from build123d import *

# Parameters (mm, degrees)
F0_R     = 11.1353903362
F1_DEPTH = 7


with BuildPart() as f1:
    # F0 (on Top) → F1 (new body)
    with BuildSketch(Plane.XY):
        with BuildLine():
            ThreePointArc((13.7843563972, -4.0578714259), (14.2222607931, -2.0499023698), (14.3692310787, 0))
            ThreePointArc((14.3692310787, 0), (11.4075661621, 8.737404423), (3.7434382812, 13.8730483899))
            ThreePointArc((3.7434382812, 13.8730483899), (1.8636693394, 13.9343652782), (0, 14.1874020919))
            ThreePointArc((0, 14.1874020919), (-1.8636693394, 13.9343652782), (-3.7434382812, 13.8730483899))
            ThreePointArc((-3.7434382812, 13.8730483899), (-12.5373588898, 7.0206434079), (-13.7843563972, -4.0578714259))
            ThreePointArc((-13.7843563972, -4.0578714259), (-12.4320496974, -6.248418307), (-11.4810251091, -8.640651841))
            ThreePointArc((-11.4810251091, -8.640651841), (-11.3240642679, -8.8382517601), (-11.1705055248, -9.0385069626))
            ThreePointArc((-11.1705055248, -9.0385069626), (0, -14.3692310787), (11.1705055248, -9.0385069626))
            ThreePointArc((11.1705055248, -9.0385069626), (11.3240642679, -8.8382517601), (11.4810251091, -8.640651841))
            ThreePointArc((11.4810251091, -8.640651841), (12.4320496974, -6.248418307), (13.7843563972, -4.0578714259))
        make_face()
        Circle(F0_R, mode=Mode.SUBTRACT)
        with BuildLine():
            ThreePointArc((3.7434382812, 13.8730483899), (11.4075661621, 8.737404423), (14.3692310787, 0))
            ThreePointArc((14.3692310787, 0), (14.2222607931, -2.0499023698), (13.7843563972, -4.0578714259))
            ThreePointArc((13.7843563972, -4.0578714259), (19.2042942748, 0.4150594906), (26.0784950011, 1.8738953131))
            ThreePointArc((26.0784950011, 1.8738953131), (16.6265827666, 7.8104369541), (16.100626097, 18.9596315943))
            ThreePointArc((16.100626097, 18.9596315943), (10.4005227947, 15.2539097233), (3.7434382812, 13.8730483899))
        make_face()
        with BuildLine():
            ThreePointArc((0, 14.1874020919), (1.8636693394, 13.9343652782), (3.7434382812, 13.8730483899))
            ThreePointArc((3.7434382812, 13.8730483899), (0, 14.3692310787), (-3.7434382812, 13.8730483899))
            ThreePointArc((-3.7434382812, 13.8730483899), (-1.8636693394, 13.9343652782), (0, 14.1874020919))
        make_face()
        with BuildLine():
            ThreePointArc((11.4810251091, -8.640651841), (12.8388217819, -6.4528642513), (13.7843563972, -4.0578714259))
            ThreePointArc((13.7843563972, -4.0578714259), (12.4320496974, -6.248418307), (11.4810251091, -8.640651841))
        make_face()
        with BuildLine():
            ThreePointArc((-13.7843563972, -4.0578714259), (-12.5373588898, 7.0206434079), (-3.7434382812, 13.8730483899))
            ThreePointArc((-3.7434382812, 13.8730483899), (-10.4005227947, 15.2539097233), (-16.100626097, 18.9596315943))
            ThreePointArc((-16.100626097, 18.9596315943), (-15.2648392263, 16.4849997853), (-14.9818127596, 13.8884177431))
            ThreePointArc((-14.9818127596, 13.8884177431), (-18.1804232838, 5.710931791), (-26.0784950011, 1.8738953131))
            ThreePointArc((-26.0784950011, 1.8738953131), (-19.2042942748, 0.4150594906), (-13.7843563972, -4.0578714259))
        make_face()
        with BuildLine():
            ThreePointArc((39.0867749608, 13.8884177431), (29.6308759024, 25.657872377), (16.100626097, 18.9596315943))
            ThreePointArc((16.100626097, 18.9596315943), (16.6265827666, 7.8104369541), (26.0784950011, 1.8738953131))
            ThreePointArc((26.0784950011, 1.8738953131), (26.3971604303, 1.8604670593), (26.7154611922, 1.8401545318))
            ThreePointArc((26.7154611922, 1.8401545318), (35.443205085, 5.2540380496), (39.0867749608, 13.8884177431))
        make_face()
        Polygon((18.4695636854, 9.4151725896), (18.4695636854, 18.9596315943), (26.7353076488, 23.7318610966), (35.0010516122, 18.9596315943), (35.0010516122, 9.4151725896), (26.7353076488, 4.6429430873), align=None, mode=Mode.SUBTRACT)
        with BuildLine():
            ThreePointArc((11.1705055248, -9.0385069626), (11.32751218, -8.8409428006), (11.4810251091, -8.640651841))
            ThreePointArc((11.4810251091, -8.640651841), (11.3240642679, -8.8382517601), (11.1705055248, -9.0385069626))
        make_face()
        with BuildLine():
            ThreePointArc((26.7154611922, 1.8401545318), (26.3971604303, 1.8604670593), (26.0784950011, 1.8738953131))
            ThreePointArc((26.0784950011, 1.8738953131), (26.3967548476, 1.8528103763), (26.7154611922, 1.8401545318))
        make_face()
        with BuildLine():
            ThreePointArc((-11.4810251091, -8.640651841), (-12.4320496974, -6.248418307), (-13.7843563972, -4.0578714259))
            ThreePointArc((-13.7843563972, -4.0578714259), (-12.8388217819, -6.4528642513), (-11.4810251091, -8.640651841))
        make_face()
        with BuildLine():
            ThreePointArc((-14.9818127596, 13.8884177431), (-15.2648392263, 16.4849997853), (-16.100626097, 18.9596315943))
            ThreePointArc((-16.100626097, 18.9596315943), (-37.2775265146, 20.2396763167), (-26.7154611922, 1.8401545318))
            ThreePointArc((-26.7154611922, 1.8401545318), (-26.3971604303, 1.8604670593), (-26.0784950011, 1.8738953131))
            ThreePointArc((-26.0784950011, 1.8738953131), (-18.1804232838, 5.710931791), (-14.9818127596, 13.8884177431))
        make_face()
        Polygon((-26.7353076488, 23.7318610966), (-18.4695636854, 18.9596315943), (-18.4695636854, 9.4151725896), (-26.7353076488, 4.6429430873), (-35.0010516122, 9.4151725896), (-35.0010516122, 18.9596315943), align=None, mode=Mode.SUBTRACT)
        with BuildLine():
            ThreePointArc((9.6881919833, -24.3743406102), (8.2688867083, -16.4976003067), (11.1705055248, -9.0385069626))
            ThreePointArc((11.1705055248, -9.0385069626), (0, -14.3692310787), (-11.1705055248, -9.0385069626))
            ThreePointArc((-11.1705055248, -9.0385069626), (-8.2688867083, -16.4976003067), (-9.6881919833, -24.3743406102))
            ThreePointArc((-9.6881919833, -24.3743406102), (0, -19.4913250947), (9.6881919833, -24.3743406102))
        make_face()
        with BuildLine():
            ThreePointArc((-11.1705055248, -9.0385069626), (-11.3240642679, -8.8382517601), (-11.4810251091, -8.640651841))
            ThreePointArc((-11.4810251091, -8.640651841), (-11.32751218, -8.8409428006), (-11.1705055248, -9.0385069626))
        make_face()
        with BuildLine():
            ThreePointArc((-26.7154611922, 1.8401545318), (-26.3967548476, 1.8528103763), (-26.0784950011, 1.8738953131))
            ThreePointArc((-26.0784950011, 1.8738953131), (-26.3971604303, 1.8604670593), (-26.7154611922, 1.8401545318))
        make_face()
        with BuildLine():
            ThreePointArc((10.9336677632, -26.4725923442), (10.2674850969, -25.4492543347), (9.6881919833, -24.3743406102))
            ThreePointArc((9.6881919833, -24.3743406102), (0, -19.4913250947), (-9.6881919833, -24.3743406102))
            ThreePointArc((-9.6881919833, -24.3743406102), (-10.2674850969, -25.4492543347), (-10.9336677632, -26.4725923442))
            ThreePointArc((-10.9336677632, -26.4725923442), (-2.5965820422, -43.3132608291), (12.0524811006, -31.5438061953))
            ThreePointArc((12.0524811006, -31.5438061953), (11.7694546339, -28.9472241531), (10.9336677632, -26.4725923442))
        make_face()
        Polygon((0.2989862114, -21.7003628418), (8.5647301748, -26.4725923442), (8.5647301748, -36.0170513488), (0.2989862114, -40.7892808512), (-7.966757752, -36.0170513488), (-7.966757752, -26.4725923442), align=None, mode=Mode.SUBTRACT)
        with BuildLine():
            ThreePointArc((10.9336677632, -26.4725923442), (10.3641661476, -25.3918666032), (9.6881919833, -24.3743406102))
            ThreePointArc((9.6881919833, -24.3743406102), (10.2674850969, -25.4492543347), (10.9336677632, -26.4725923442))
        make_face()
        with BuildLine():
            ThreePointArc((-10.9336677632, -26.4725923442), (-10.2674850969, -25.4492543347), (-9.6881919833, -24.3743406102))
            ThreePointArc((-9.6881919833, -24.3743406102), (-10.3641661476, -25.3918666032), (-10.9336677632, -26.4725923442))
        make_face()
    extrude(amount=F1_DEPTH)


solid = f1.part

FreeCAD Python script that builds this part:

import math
import FreeCAD as App
import Part
import Sketcher
Q = App.Units.Quantity

doc = App.newDocument("Part")
body = doc.addObject("PartDesign::Body", "Body")

# Sketch on XY plane
sketch1 = body.newObject("Sketcher::SketchObject", "Sketch")
sketch1.AttachmentSupport = (doc.getObject("XY_Plane"), [""])
sketch1.MapMode = "FlatFace"
sketch1.addGeometry(Part.ArcOfCircle(Part.Circle(App.Vector(25.6, -12.9, 0), App.Vector(0, 0, 1), 14.8), math.radians(88), math.radians(143)), False)
sketch1.addGeometry(Part.ArcOfCircle(Part.Circle(App.Vector(27, 13.9, 0), App.Vector(0, 0, 1), 12.1), math.radians(-94.55), math.radians(-91.52)), False)
sketch1.addGeometry(Part.ArcOfCircle(Part.Circle(App.Vector(27, 13.9, 0), App.Vector(0, 0, 1), 12.1), math.radians(-92), math.radians(0)), False)
sketch1.addGeometry(Part.ArcOfCircle(Part.Circle(App.Vector(27, 13.9, 0), App.Vector(0, 0, 1), 12.1), math.radians(0), math.radians(155)), False)
sketch1.addGeometry(Part.ArcOfCircle(Part.Circle(App.Vector(3.4, 32.3, 0), App.Vector(0, 0, 1), 18.4), math.radians(-89), math.radians(-46)), False)
sketch1.addGeometry(Part.ArcOfCircle(Part.Circle(App.Vector(0, 0, 0), App.Vector(0, 0, 1), 14.4), math.radians(75), math.radians(105)), False)
sketch1.addGeometry(Part.ArcOfCircle(Part.Circle(App.Vector(-3.4, 32.3, 0), App.Vector(0, 0, 1), 18.4), math.radians(-134), math.radians(-91)), False)
sketch1.addGeometry(Part.ArcOfCircle(Part.Circle(App.Vector(-27, 13.9, 0), App.Vector(0, 0, 1), 12.1), math.radians(25), math.radians(272)), False)
sketch1.addGeometry(Part.ArcOfCircle(Part.Circle(App.Vector(-27, 13.9, 0), App.Vector(0, 0, 1), 12.1), math.radians(-88.48), math.radians(-85.45)), False)
sketch1.addGeometry(Part.ArcOfCircle(Part.Circle(App.Vector(-25.6, -12.9, 0), App.Vector(0, 0, 1), 14.8), math.radians(37), math.radians(92)), False)
sketch1.addGeometry(Part.ArcOfCircle(Part.Circle(App.Vector(0, 0, 0), App.Vector(0, 0, 1), 14.4), math.radians(-164), math.radians(-143)), False)
sketch1.addGeometry(Part.ArcOfCircle(Part.Circle(App.Vector(0, 0, 0), App.Vector(0, 0, 1), 14.4), math.radians(-143.03), math.radians(-141.02)), False)
sketch1.addGeometry(Part.ArcOfCircle(Part.Circle(App.Vector(-23, -17.9, 0), App.Vector(0, 0, 1), 14.8), math.radians(-26), math.radians(37)), False)
sketch1.addGeometry(Part.ArcOfCircle(Part.Circle(App.Vector(0, -31.5, 0), App.Vector(0, 0, 1), 12.1), math.radians(143.5), math.radians(155.12)), False)
sketch1.addGeometry(Part.ArcOfCircle(Part.Circle(App.Vector(0, -31.5, 0), App.Vector(0, 0, 1), 12.1), math.radians(155), math.radians(360)), False)
sketch1.addGeometry(Part.ArcOfCircle(Part.Circle(App.Vector(0, -31.5, 0), App.Vector(0, 0, 1), 12.1), math.radians(0), math.radians(25)), False)
sketch1.addGeometry(Part.ArcOfCircle(Part.Circle(App.Vector(0, -31.5, 0), App.Vector(0, 0, 1), 12.1), math.radians(24.88), math.radians(36.5)), False)
sketch1.addGeometry(Part.ArcOfCircle(Part.Circle(App.Vector(23, -17.9, 0), App.Vector(0, 0, 1), 14.8), math.radians(143), math.radians(206)), False)
sketch1.addGeometry(Part.ArcOfCircle(Part.Circle(App.Vector(0, 0, 0), App.Vector(0, 0, 1), 14.4), math.radians(-38.98), math.radians(-36.97)), False)
sketch1.addGeometry(Part.ArcOfCircle(Part.Circle(App.Vector(0, 0, 0), App.Vector(0, 0, 1), 14.4), math.radians(-37), math.radians(-16)), False)
sketch1.addGeometry(Part.LineSegment(App.Vector(-8, -26.5, 0), App.Vector(0.3, -21.7, 0)), False)
sketch1.addGeometry(Part.LineSegment(App.Vector(0.3, -21.7, 0), App.Vector(8.6, -26.5, 0)), False)
sketch1.addGeometry(Part.LineSegment(App.Vector(8.6, -26.5, 0), App.Vector(8.6, -36, 0)), False)
sketch1.addGeometry(Part.LineSegment(App.Vector(8.6, -36, 0), App.Vector(0.3, -40.8, 0)), False)
sketch1.addGeometry(Part.LineSegment(App.Vector(0.3, -40.8, 0), App.Vector(-8, -36, 0)), False)
sketch1.addGeometry(Part.LineSegment(App.Vector(-8, -36, 0), App.Vector(-8, -26.5, 0)), False)
sketch1.addGeometry(Part.LineSegment(App.Vector(-35, 19, 0), App.Vector(-26.7, 23.7, 0)), False)
sketch1.addGeometry(Part.LineSegment(App.Vector(-26.7, 23.7, 0), App.Vector(-18.5, 19, 0)), False)
sketch1.addGeometry(Part.LineSegment(App.Vector(-18.5, 19, 0), App.Vector(-18.5, 9.4, 0)), False)
sketch1.addGeometry(Part.LineSegment(App.Vector(-18.5, 9.4, 0), App.Vector(-26.7, 4.6, 0)), False)
sketch1.addGeometry(Part.LineSegment(App.Vector(-26.7, 4.6, 0), App.Vector(-35, 9.4, 0)), False)
sketch1.addGeometry(Part.LineSegment(App.Vector(-35, 9.4, 0), App.Vector(-35, 19, 0)), False)
sketch1.addGeometry(Part.Circle(App.Vector(0, 0, 0), App.Vector(0, 0, 1), 11.1), False)
sketch1.addGeometry(Part.LineSegment(App.Vector(26.7, 4.6, 0), App.Vector(18.5, 9.4, 0)), False)
sketch1.addGeometry(Part.LineSegment(App.Vector(18.5, 9.4, 0), App.Vector(18.5, 19, 0)), False)
sketch1.addGeometry(Part.LineSegment(App.Vector(18.5, 19, 0), App.Vector(26.7, 23.7, 0)), False)
sketch1.addGeometry(Part.LineSegment(App.Vector(26.7, 23.7, 0), App.Vector(35, 19, 0)), False)
sketch1.addGeometry(Part.LineSegment(App.Vector(35, 19, 0), App.Vector(35, 9.4, 0)), False)
sketch1.addGeometry(Part.LineSegment(App.Vector(35, 9.4, 0), App.Vector(26.7, 4.6, 0)), False)
sketch1.addConstraint(Sketcher.Constraint("Coincident", 0, 1, 1, 1))
sketch1.addConstraint(Sketcher.Constraint("Tangent", 1, 2, 2, 1))
sketch1.addConstraint(Sketcher.Constraint("Tangent", 2, 2, 3, 1))
sketch1.addConstraint(Sketcher.Constraint("Coincident", 3, 2, 4, 2))
sketch1.addConstraint(Sketcher.Constraint("Coincident", 4, 1, 5, 1))
sketch1.addConstraint(Sketcher.Constraint("Coincident", 5, 2, 6, 2))
sketch1.addConstraint(Sketcher.Constraint("Coincident", 6, 1, 7, 1))
sketch1.addConstraint(Sketcher.Constraint("Tangent", 7, 2, 8, 1))
sketch1.addConstraint(Sketcher.Constraint("Coincident", 8, 2, 9, 2))
sketch1.addConstraint(Sketcher.Constraint("Coincident", 9, 1, 10, 1))
sketch1.addConstraint(Sketcher.Constraint("Tangent", 10, 2, 11, 1))
sketch1.addConstraint(Sketcher.Constraint("Coincident", 11, 2, 12, 2))
sketch1.addConstraint(Sketcher.Constraint("Coincident", 12, 1, 13, 1))
sketch1.addConstraint(Sketcher.Constraint("Tangent", 13, 2, 14, 1))
sketch1.addConstraint(Sketcher.Constraint("Tangent", 14, 2, 15, 1))
sketch1.addConstraint(Sketcher.Constraint("Tangent", 15, 2, 16, 1))
sketch1.addConstraint(Sketcher.Constraint("Coincident", 16, 2, 17, 2))
sketch1.addConstraint(Sketcher.Constraint("Coincident", 17, 1, 18, 1))
sketch1.addConstraint(Sketcher.Constraint("Tangent", 18, 2, 19, 1))
sketch1.addConstraint(Sketcher.Constraint("Coincident", 19, 2, 0, 2))
sketch1.addConstraint(Sketcher.Constraint("Coincident", 20, 2, 21, 1))
sketch1.addConstraint(Sketcher.Constraint("Coincident", 21, 2, 22, 1))
sketch1.addConstraint(Sketcher.Constraint("Coincident", 22, 2, 23, 1))
sketch1.addConstraint(Sketcher.Constraint("Coincident", 23, 2, 24, 1))
sketch1.addConstraint(Sketcher.Constraint("Coincident", 24, 2, 25, 1))
sketch1.addConstraint(Sketcher.Constraint("Coincident", 25, 2, 20, 1))
sketch1.addConstraint(Sketcher.Constraint("Coincident", 26, 2, 27, 1))
sketch1.addConstraint(Sketcher.Constraint("Coincident", 27, 2, 28, 1))
sketch1.addConstraint(Sketcher.Constraint("Coincident", 28, 2, 29, 1))
sketch1.addConstraint(Sketcher.Constraint("Coincident", 29, 2, 30, 1))
sketch1.addConstraint(Sketcher.Constraint("Coincident", 30, 2, 31, 1))
sketch1.addConstraint(Sketcher.Constraint("Coincident", 31, 2, 26, 1))
sketch1.addConstraint(Sketcher.Constraint("Coincident", 33, 2, 34, 1))
sketch1.addConstraint(Sketcher.Constraint("Coincident", 34, 2, 35, 1))
sketch1.addConstraint(Sketcher.Constraint("Coincident", 35, 2, 36, 1))
sketch1.addConstraint(Sketcher.Constraint("Coincident", 36, 2, 37, 1))
sketch1.addConstraint(Sketcher.Constraint("Coincident", 37, 2, 38, 1))
sketch1.addConstraint(Sketcher.Constraint("Coincident", 38, 2, 33, 1))
sketch1.addConstraint(Sketcher.Constraint("Vertical", 22))
sketch1.addConstraint(Sketcher.Constraint("Vertical", 25))
sketch1.addConstraint(Sketcher.Constraint("Vertical", 28))
sketch1.addConstraint(Sketcher.Constraint("Vertical", 31))
sketch1.addConstraint(Sketcher.Constraint("Vertical", 34))
sketch1.addConstraint(Sketcher.Constraint("Vertical", 37))
sketch1.addConstraint(Sketcher.Constraint("Coincident", 5, 3, -1, 1))
sketch1.addConstraint(Sketcher.Constraint("Coincident", 10, 3, -1, 1))
sketch1.addConstraint(Sketcher.Constraint("Coincident", 18, 3, -1, 1))
sketch1.addConstraint(Sketcher.Constraint("Coincident", 32, 3, -1, 1))
sketch1.addConstraint(Sketcher.Constraint("Coincident", 3, 3, 1, 3))
sketch1.addConstraint(Sketcher.Constraint("Coincident", 15, 3, 13, 3))
sketch1.addConstraint(Sketcher.Constraint("Equal", 4, 6))
sketch1.addConstraint(Sketcher.Constraint("Equal", 3, 7))
sketch1.addConstraint(Sketcher.Constraint("Equal", 7, 8))
sketch1.addConstraint(Sketcher.Constraint("Equal", 0, 9))
sketch1.addConstraint(Sketcher.Constraint("Equal", 5, 10))
sketch1.addConstraint(Sketcher.Constraint("Equal", 10, 11))
sketch1.addConstraint(Sketcher.Constraint("Equal", 9, 12))
sketch1.addConstraint(Sketcher.Constraint("Equal", 8, 13))
sketch1.addConstraint(Sketcher.Constraint("Equal", 15, 16))
sketch1.addConstraint(Sketcher.Constraint("Equal", 12, 17))
sketch1.addConstraint(Sketcher.Constraint("Equal", 11, 18))
sketch1.addConstraint(Sketcher.Constraint("Equal", 18, 19))
sketch1.addConstraint(Sketcher.Constraint("Symmetric", 4, 3, 6, 3, -2))
sketch1.addConstraint(Sketcher.Constraint("Symmetric", 1, 3, 7, 3, -2))
sketch1.addConstraint(Sketcher.Constraint("Symmetric", 0, 3, 9, 3, -2))
sketch1.addConstraint(Sketcher.Constraint("Symmetric", 12, 3, 17, 3, -2))
sketch1.addConstraint(Sketcher.Constraint("Symmetric", 13, 2, 15, 2, -2))
sketch1.addConstraint(Sketcher.Constraint("Symmetric", 28, 2, 33, 2, -2))
sketch1.addConstraint(Sketcher.Constraint("Symmetric", 26, 2, 35, 2, -2))
sketch1.addConstraint(Sketcher.Constraint("Symmetric", 31, 2, 36, 2, -2))
sketch1.addConstraint(Sketcher.Constraint("Symmetric", 29, 2, 38, 2, -2))
sketch1.addConstraint(Sketcher.Constraint("Parallel", 20, 23))
sketch1.addConstraint(Sketcher.Constraint("Parallel", 21, 24))
sketch1.addConstraint(Sketcher.Constraint("Parallel", 23, 26))
sketch1.addConstraint(Sketcher.Constraint("Parallel", 24, 27))
sketch1.addConstraint(Sketcher.Constraint("Parallel", 26, 29))
sketch1.addConstraint(Sketcher.Constraint("Parallel", 27, 30))
sketch1.addConstraint(Sketcher.Constraint("Parallel", 30, 33))
sketch1.addConstraint(Sketcher.Constraint("Parallel", 29, 35))
sketch1.addConstraint(Sketcher.Constraint("Parallel", 35, 38))
sketch1.addConstraint(Sketcher.Constraint("Horizontal", 8, 3, 2, 2))
sketch1.addConstraint(Sketcher.Constraint("Horizontal", 1, 2, 7, 2))
sketch1.addConstraint(Sketcher.Constraint("Horizontal", 16, 3, 14, 2))
sketch1.addConstraint(Sketcher.Constraint("Horizontal", 10, 2, 18, 2))
sketch1.addConstraint(Sketcher.Constraint("Horizontal", 15, 2, 21, 2))
sketch1.addConstraint(Sketcher.Constraint("Horizontal", 22, 2, 24, 2))
sketch1.addConstraint(Sketcher.Constraint("Horizontal", 21, 2, 25, 2))
sketch1.addConstraint(Sketcher.Constraint("Horizontal", 6, 1, 27, 2))
sketch1.addConstraint(Sketcher.Constraint("Horizontal", 28, 2, 30, 2))
sketch1.addConstraint(Sketcher.Constraint("Horizontal", 27, 2, 31, 2))
sketch1.addConstraint(Sketcher.Constraint("Equal", 25, 28))
sketch1.addConstraint(Sketcher.Constraint("Equal", 24, 26))
sketch1.addConstraint(Sketcher.Constraint("Angle", 20, Q("30 deg")))
sketch1.addConstraint(Sketcher.Constraint("Diameter", 32, Q("22.270781 mm")))
sketch1.addConstraint(Sketcher.Constraint("Radius", 1, Q("12.052481 mm")))
sketch1.addConstraint(Sketcher.Constraint("Radius", 5, Q("14.369231 mm")))
sketch1.addConstraint(Sketcher.Constraint("Radius", 0, Q("14.756176 mm")))
sketch1.addConstraint(Sketcher.Constraint("Radius", 4, Q("18.385593 mm")))
sketch1.addConstraint(Sketcher.Constraint("DistanceY", 22, 2, 22, 1, Q("9.544459 mm")))
sketch1.addConstraint(Sketcher.Constraint("DistanceX", 0, 1, 1, 3, Q("0.955799 mm")))
sketch1.addConstraint(Sketcher.Constraint("Distance", 20, Q("9.544459 mm")))
sketch1.addConstraint(Sketcher.Constraint("DistanceY", 0, 3, -1, 1, Q("12.87505 mm")))
sketch1.addConstraint(Sketcher.Constraint("DistanceX", 12, 3, -1, 1, Q("22.956612 mm")))
sketch1.addConstraint(Sketcher.Constraint("DistanceY", 12, 3, -1, 1, Q("17.91727 mm")))
sketch1.addConstraint(Sketcher.Constraint("DistanceX", -1, 1, 1, 2, Q("26.715461 mm")))
sketch1.addConstraint(Sketcher.Constraint("DistanceY", -1, 1, 3, 2, Q("18.959632 mm")))
sketch1.addConstraint(Sketcher.Constraint("DistanceX", -1, 1, 4, 1, Q("3.743438 mm")))
sketch1.addConstraint(Sketcher.Constraint("DistanceY", 9, 1, -1, 1, Q("4.057871 mm")))
sketch1.addConstraint(Sketcher.Constraint("DistanceY", 10, 2, -1, 1, Q("8.640652 mm")))
sketch1.addConstraint(Sketcher.Constraint("DistanceX", 12, 1, -1, 1, Q("9.688192 mm")))
sketch1.addConstraint(Sketcher.Constraint("DistanceX", -1, 1, 21, 2, Q("8.56473 mm")))
sketch1.addConstraint(Sketcher.Constraint("DistanceY", 22, 2, -1, 1, Q("36.017051 mm")))
sketch1.addConstraint(Sketcher.Constraint("DistanceX", 30, 2, -1, 1, Q("35.001052 mm")))
sketch1.addConstraint(Sketcher.Constraint("DistanceX", 0, 3, 1, 3, Q("1.41769 mm")))
pad1 = body.newObject("PartDesign::Pad", "Pad")
pad1.Profile = sketch1
pad1.Length = 7

doc.recompute()
